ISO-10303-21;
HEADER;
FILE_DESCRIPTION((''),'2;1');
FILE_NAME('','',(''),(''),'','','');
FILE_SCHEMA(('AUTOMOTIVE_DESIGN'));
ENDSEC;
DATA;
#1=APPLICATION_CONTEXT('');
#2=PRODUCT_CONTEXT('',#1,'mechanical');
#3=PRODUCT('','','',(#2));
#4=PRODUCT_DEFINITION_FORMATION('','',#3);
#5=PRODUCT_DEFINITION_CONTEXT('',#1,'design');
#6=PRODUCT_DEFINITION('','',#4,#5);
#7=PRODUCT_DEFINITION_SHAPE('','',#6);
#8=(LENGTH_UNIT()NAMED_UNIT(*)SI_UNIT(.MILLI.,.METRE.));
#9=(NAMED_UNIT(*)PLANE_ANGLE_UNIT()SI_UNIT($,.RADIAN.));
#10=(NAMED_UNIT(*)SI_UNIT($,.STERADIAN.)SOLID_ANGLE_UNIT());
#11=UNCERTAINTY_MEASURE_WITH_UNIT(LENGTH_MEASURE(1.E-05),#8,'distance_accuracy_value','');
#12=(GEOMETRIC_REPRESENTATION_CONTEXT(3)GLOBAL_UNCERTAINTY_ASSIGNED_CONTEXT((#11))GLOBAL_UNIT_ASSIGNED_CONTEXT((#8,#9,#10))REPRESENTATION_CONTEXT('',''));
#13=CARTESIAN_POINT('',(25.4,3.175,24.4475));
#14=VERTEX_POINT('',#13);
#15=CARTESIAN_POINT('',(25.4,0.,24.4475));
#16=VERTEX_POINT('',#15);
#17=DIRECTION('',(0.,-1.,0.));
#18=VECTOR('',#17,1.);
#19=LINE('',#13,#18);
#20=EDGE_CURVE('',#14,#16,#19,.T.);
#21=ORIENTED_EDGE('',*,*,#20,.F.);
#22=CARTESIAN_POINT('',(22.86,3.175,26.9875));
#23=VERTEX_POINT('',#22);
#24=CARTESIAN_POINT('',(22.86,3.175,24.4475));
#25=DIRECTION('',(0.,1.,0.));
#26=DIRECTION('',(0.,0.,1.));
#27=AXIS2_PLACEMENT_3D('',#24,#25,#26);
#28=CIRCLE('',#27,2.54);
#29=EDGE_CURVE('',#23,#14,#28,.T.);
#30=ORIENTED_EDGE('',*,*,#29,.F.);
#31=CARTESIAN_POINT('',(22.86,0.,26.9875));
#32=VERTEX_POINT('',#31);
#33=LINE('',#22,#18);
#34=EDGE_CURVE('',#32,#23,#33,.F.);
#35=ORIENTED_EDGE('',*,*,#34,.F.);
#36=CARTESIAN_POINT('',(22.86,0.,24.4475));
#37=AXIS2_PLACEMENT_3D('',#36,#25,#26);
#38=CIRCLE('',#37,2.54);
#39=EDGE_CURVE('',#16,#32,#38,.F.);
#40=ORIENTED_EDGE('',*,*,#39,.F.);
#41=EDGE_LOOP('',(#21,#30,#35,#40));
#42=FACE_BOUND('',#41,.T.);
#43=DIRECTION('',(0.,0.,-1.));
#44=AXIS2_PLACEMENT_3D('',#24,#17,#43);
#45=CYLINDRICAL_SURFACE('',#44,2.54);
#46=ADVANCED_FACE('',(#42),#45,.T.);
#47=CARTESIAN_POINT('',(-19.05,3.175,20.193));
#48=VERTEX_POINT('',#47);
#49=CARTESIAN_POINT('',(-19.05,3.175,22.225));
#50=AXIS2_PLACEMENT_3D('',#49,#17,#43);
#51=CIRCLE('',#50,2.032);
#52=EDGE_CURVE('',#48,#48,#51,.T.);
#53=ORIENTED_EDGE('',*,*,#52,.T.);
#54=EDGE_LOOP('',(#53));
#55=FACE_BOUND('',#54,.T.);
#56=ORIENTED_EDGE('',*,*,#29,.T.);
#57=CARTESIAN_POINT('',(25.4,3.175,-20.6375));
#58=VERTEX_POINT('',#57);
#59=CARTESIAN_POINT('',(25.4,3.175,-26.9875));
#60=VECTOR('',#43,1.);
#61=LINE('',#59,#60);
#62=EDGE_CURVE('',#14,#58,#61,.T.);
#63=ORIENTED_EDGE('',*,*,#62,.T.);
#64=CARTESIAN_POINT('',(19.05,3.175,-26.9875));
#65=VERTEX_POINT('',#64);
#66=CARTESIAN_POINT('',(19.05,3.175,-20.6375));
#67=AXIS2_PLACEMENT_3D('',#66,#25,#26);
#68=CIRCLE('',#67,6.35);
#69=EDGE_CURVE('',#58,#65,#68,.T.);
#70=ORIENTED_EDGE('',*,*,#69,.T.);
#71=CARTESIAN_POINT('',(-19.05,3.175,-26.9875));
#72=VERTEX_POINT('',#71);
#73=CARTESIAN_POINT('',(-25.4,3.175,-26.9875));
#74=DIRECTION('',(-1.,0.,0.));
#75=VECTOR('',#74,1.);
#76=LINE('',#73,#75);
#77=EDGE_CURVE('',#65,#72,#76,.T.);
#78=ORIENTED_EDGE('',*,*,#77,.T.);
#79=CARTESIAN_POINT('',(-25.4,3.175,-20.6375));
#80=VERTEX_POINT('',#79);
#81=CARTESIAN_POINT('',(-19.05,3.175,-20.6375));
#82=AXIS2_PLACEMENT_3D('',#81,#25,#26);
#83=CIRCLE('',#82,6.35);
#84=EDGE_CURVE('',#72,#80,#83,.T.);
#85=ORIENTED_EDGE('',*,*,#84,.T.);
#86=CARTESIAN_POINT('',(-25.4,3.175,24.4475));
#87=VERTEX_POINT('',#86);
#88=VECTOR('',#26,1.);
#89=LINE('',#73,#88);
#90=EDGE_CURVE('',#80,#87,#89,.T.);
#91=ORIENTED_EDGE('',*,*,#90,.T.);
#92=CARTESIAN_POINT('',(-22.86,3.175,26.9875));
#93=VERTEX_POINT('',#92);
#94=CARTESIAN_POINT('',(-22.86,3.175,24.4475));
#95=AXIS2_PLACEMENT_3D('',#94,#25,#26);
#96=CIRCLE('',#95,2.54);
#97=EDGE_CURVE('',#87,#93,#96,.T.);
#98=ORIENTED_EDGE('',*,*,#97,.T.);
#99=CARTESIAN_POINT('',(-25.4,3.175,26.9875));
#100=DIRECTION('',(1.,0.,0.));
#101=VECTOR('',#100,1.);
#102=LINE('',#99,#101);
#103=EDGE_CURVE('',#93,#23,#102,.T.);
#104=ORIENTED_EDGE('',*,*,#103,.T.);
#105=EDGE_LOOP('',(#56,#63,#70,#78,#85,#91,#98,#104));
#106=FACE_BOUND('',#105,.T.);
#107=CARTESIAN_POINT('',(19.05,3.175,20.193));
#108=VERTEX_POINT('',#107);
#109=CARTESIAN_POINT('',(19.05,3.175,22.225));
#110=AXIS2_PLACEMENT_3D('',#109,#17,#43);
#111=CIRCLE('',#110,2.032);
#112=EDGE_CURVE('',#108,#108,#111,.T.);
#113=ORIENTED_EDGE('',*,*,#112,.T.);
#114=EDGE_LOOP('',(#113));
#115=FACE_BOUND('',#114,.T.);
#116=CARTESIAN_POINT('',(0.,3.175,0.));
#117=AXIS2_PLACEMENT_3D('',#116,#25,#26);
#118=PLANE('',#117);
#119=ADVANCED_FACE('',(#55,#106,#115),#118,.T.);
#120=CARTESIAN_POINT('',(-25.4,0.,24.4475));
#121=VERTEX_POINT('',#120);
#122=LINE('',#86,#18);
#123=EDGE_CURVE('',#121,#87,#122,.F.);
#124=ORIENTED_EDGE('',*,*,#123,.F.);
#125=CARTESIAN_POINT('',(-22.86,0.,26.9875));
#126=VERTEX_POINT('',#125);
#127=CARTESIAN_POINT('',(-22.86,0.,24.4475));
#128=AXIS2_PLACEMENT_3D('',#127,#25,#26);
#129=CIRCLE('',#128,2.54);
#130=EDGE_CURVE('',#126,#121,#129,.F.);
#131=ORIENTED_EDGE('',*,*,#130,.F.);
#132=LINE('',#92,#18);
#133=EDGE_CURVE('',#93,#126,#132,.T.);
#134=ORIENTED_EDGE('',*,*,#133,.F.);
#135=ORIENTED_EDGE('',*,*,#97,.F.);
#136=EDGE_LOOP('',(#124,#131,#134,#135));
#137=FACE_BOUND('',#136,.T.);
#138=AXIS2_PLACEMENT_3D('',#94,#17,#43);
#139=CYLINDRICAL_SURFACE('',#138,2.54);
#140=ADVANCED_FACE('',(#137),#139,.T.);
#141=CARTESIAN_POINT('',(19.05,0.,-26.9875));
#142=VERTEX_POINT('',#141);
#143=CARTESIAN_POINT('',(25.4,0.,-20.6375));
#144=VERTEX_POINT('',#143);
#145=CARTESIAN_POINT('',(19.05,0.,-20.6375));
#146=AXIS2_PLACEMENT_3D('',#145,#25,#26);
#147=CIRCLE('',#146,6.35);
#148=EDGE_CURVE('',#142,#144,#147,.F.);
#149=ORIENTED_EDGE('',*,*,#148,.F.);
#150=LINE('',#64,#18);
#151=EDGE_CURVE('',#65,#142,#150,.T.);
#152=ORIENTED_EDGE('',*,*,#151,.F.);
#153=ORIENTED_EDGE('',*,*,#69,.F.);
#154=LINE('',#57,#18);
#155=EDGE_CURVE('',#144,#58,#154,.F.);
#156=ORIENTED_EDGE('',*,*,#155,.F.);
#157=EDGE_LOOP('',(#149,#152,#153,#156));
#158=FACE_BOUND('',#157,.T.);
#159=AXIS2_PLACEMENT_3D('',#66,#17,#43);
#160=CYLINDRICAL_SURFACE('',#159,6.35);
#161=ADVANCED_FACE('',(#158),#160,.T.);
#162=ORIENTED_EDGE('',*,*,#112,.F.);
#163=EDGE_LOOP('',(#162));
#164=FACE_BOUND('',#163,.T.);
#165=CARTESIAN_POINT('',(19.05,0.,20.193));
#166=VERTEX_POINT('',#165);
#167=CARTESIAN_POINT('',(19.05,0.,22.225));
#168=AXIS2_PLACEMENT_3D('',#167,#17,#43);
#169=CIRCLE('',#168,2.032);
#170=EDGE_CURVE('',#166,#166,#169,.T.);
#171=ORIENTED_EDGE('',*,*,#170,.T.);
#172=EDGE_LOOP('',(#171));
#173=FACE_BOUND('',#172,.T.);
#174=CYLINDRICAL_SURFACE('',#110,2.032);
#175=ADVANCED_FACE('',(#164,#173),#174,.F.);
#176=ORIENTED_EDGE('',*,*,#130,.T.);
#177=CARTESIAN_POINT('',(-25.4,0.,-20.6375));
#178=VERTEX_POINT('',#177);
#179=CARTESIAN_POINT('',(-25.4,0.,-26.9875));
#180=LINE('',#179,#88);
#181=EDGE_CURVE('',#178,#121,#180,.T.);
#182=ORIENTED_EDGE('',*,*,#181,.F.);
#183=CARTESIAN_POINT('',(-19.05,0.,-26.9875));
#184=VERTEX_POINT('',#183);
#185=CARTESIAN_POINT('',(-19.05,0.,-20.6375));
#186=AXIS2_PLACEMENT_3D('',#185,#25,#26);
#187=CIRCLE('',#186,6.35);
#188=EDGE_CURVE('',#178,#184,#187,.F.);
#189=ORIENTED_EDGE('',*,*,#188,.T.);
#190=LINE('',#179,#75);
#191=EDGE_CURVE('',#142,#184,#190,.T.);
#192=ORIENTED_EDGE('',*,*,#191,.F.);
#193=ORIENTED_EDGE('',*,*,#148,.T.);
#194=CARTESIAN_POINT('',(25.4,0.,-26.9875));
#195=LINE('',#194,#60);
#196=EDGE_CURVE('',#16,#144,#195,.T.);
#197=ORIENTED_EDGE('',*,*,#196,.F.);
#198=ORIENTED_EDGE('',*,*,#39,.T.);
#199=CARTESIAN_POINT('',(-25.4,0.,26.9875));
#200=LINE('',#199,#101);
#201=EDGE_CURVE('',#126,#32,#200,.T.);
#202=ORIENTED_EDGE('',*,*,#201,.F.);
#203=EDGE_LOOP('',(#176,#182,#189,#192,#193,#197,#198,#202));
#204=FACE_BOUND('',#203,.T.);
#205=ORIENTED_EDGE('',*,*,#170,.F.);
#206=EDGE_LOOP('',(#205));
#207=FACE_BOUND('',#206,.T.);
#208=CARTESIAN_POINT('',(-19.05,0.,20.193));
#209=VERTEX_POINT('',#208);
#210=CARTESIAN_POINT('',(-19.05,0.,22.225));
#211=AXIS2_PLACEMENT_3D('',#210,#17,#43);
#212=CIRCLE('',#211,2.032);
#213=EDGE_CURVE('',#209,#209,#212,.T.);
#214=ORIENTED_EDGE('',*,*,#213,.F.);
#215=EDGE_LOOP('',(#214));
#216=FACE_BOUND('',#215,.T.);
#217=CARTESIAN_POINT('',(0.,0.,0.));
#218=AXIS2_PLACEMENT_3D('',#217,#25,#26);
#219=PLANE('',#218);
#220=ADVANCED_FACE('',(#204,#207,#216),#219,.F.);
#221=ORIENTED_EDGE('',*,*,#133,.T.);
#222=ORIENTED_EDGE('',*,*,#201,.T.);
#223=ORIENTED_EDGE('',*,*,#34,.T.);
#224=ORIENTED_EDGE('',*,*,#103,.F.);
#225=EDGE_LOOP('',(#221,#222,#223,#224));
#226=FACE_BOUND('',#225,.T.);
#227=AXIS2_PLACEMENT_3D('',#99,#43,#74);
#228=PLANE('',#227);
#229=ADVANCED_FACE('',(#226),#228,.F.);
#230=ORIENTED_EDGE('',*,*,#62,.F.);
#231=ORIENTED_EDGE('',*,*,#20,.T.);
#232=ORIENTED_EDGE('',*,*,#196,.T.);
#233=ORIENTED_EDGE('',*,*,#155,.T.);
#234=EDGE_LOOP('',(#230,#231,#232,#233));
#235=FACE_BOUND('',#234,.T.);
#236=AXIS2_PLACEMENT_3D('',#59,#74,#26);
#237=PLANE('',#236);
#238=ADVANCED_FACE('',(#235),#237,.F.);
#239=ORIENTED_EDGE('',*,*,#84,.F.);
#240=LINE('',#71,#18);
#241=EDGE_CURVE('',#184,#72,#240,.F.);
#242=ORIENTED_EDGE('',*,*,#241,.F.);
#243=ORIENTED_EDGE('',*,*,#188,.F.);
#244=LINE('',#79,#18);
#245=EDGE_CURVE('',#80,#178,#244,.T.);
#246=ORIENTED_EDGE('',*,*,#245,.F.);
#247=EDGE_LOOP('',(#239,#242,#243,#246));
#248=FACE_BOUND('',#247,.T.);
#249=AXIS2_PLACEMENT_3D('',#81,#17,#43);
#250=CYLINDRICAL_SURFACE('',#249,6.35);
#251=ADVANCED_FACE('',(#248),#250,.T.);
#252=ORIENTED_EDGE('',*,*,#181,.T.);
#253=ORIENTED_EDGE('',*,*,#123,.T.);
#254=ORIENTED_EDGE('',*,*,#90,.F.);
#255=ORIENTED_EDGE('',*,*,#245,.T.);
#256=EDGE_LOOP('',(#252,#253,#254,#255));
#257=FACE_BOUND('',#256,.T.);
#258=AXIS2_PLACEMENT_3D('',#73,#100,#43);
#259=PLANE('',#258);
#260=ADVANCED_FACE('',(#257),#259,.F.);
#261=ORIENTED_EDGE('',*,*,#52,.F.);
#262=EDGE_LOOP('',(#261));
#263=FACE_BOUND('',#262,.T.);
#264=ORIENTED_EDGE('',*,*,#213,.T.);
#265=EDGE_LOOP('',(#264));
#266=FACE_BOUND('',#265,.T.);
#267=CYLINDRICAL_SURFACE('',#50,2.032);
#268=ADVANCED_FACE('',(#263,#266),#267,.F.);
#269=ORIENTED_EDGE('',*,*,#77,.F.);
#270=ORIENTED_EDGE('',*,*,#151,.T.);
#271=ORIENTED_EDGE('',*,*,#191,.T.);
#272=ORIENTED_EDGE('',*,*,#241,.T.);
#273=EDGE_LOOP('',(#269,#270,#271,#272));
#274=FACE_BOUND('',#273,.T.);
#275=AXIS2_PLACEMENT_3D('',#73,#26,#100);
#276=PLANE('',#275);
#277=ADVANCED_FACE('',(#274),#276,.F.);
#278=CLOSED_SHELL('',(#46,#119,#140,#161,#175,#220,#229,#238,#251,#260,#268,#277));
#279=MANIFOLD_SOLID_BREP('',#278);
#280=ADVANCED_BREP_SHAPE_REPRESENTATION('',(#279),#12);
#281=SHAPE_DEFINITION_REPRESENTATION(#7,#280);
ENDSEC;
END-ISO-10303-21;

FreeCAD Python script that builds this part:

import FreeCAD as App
import Part
import Sketcher
Q = App.Units.Quantity


def edges_at(feature, points):
    """Names of the edges that pass closest to the given points."""
    edges = feature.Shape.Edges
    near = lambda p: min(range(len(edges)), key=lambda i: edges[i].distToShape(Part.Vertex(*p))[0])
    return sorted({f"Edge{near(p) + 1}" for p in points})


def add_polygon(sketch, points):
    """Adds a closed chain of lines whose ends are joined by coincident constraints."""
    first, n = sketch.GeometryCount, len(points)
    for a, b in zip(points, points[1:] + points[:1]):
        sketch.addGeometry(Part.LineSegment(App.Vector(*a, 0), App.Vector(*b, 0)), False)
    for i in range(n):
        sketch.addConstraint(Sketcher.Constraint("Coincident", first + i, 2, first + (i + 1) % n, 1))

doc = App.newDocument("Part")
body = doc.addObject("PartDesign::Body", "Body")

sketch1 = body.newObject("Sketcher::SketchObject", "Sketch")
sketch1.AttachmentSupport = (doc.getObject("XZ_Plane"), [""])
sketch1.MapMode = "FlatFace"
add_polygon(sketch1, [(-25, -27), (-25, 27), (25, 27), (25, -27)])
sketch1.addConstraint([
    Sketcher.Constraint("Vertical", 0),
    Sketcher.Constraint("Horizontal", 1),
    Sketcher.Constraint("Vertical", 2),
    Sketcher.Constraint("Horizontal", 3),
    Sketcher.Constraint("Symmetric", 0, 2, 2, 2, -1, 1),
    Sketcher.Constraint("DistanceX", 1, 1, 1, 2, Q("2 in")),
    Sketcher.Constraint("DistanceY", 0, 1, 0, 2, Q("2.125 in")),
])
pad1 = body.newObject("PartDesign::Pad", "Pad")
pad1.Profile = sketch1
pad1.Length = Q("0.125 in")
pad1.Reversed = True

sketch2 = body.newObject("Sketcher::SketchObject", "Sketch001")
sketch2.AttachmentSupport = (doc.getObject("XZ_Plane"), [""])
sketch2.MapMode = "FlatFace"
sketch2.addGeometry([
    Part.Circle(App.Vector(19.1, 22.2, 0), App.Vector(0, 0, 1), 2),
    Part.Circle(App.Vector(-19.1, 22.2, 0), App.Vector(0, 0, 1), 2),
], False)
sketch2.addConstraint([
    Sketcher.Constraint("Equal", 0, 1),
    Sketcher.Constraint("Symmetric", 0, 3, 1, 3, -2),
    Sketcher.Constraint("Diameter", 0, Q("0.16 in")),
    Sketcher.Constraint("DistanceX", 1, 3, 0, 3, Q("1.5 in")),
    Sketcher.Constraint("DistanceY", -1, 1, 0, 3, Q("0.875 in")),
])
pocket1 = body.newObject("PartDesign::Pocket", "Pocket")
pocket1.Profile = sketch2
pocket1.Type = "ThroughAll"
doc.recompute()

fillet = body.newObject("PartDesign::Fillet", "Fillet")
fillet.Base = (pocket1, edges_at(pocket1, [(25.4, 1.587, 26.988), (-25.4, 1.587, 26.988)]))
fillet.Radius = Q("0.1 in")
doc.recompute()

fillet2 = body.newObject("PartDesign::Fillet", "Fillet001")
fillet2.Base = (fillet, edges_at(fillet, [(-25.4, 1.587, -26.988), (25.4, 1.587, -26.988)]))
fillet2.Radius = Q("0.25 in")

doc.recompute()
